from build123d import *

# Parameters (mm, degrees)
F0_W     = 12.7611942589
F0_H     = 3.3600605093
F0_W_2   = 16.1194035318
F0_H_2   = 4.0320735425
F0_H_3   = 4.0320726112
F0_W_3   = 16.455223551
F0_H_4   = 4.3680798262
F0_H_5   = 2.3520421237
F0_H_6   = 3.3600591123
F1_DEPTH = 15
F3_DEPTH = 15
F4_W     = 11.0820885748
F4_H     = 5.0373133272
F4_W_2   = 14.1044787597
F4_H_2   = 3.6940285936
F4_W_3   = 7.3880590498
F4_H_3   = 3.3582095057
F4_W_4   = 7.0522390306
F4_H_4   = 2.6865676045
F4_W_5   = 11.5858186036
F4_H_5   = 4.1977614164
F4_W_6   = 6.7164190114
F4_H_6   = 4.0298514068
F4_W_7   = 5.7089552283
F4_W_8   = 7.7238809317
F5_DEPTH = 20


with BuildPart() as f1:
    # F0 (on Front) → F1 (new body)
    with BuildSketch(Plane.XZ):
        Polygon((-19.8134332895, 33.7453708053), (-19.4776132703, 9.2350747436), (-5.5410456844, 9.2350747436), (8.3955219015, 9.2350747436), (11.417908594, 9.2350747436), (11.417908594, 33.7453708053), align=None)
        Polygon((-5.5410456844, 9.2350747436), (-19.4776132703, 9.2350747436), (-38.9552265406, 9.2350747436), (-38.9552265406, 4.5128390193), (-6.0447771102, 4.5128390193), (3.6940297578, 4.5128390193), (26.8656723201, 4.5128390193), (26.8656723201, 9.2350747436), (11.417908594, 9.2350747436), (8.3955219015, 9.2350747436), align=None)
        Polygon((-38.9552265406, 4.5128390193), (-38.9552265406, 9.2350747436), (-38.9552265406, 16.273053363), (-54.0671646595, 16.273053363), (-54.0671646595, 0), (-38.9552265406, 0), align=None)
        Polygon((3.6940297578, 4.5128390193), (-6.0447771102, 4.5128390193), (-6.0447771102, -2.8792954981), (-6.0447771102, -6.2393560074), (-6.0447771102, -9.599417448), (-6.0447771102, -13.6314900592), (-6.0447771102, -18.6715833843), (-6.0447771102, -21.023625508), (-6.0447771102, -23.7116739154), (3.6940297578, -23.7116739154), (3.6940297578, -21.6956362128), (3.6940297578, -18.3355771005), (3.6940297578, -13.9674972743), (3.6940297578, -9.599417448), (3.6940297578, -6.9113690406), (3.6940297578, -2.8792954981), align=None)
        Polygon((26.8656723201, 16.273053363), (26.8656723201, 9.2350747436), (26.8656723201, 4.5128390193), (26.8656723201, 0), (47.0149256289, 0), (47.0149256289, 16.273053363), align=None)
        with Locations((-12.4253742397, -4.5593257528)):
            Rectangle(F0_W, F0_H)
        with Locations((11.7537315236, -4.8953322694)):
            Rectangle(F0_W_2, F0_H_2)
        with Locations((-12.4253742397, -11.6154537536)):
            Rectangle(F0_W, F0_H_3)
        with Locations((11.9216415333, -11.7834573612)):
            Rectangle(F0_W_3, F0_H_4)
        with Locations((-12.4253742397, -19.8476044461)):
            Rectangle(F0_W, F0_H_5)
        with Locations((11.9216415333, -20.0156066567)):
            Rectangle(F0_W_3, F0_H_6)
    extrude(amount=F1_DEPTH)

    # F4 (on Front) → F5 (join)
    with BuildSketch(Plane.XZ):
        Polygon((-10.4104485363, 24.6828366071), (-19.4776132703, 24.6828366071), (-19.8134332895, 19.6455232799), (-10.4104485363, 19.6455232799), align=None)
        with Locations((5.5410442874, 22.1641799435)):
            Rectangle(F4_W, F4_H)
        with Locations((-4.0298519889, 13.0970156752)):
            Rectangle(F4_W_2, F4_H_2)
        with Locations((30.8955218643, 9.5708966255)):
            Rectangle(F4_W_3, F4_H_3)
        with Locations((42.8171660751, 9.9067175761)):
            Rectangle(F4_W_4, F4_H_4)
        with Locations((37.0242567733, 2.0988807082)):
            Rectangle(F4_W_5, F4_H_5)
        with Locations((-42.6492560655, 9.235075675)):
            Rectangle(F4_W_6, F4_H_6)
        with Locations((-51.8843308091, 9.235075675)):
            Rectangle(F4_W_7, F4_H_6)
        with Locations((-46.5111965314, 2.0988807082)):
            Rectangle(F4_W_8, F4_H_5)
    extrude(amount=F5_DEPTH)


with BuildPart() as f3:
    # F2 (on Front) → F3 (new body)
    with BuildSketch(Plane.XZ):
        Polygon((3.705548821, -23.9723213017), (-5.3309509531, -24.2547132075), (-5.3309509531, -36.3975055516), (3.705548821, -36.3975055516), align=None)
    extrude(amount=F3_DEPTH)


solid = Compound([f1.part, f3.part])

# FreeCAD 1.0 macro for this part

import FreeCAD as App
import Part
import Sketcher
Q = App.Units.Quantity


def add_polygon(sketch, points):
    """Adds a closed chain of lines whose ends are joined by coincident constraints."""
    first, n = sketch.GeometryCount, len(points)
    for a, b in zip(points, points[1:] + points[:1]):
        sketch.addGeometry(Part.LineSegment(App.Vector(*a, 0), App.Vector(*b, 0)), False)
    for i in range(n):
        sketch.addConstraint(Sketcher.Constraint("Coincident", first + i, 2, first + (i + 1) % n, 1))

doc = App.newDocument("Part")
params = doc.addObject("Spreadsheet::Sheet", "Params")
for row, (alias, value) in enumerate([
    ("pad1_length", "15 mm"),
    ("pad2_length", "20 mm"),
    ("pad3_length", "15 mm"),
], start=1):
    params.set(f"A{row}", alias)
    params.set(f"B{row}", "=" + value)
    params.setAlias(f"B{row}", alias)

body = doc.addObject("PartDesign::Body", "Body")

sketch1 = body.newObject("Sketcher::SketchObject", "Sketch")
sketch1.AttachmentSupport = (doc.getObject("XZ_Plane"), [""])
sketch1.MapMode = "FlatFace"
add_polygon(sketch1, [(-19.813433, 33.745371), (-19.477613, 9.235075), (-38.955227, 9.235075), (-38.955227, 16.273053), (-54.067165, 16.273053), (-54.067165, 0), (-38.955227, 0), (-38.955227, 4.512839), (-6.044777, 4.512839), (-6.044777, -2.879295), (-18.805971, -2.879295), (-18.805971, -6.239356), (-6.044777, -6.239356), (-6.044777, -9.599417), (-18.805971, -9.599417), (-18.805971, -13.63149), (-6.044777, -13.63149), (-6.044777, -18.671583), (-18.805971, -18.671583), (-18.805971, -21.023626), (-6.044777, -21.023626), (-6.044777, -23.711674), (3.69403, -23.711674), (3.69403, -21.695636), (20.149253, -21.695636), (20.149253, -18.335577), (3.69403, -18.335577), (3.69403, -13.967497), (20.149253, -13.967497), (20.149253, -9.599417), (3.69403, -9.599417), (3.69403, -6.911369), (19.813433, -6.911369), (19.813433, -2.879295), (3.69403, -2.879295), (3.69403, 4.512839), (26.865672, 4.512839), (26.865672, 0), (47.014926, 0), (47.014926, 16.273053), (26.865672, 16.273053), (26.865672, 9.235075), (11.417909, 9.235075), (11.417909, 33.745371)])
sketch1.addConstraint([
    Sketcher.Constraint("Horizontal", 1),
    Sketcher.Constraint("Vertical", 2),
    Sketcher.Constraint("Horizontal", 3),
    Sketcher.Constraint("Vertical", 4),
    Sketcher.Constraint("Horizontal", 5),
    Sketcher.Constraint("Vertical", 6),
    Sketcher.Constraint("Horizontal", 7),
    Sketcher.Constraint("Vertical", 8),
    Sketcher.Constraint("Horizontal", 9),
    Sketcher.Constraint("Vertical", 10),
    Sketcher.Constraint("Horizontal", 11),
    Sketcher.Constraint("Vertical", 12),
    Sketcher.Constraint("Horizontal", 13),
    Sketcher.Constraint("Vertical", 14),
    Sketcher.Constraint("Horizontal", 15),
    Sketcher.Constraint("Vertical", 16),
    Sketcher.Constraint("Horizontal", 17),
    Sketcher.Constraint("Vertical", 18),
    Sketcher.Constraint("Horizontal", 19),
    Sketcher.Constraint("Vertical", 20),
    Sketcher.Constraint("Horizontal", 21),
    Sketcher.Constraint("Vertical", 22),
    Sketcher.Constraint("Horizontal", 23),
    Sketcher.Constraint("Vertical", 24),
    Sketcher.Constraint("Horizontal", 25),
    Sketcher.Constraint("Vertical", 26),
    Sketcher.Constraint("Horizontal", 27),
    Sketcher.Constraint("Vertical", 28),
    Sketcher.Constraint("Horizontal", 29),
    Sketcher.Constraint("Vertical", 30),
    Sketcher.Constraint("Horizontal", 31),
    Sketcher.Constraint("Vertical", 32),
    Sketcher.Constraint("Horizontal", 33),
    Sketcher.Constraint("Vertical", 34),
    Sketcher.Constraint("Horizontal", 35),
    Sketcher.Constraint("Vertical", 36),
    Sketcher.Constraint("Horizontal", 37),
    Sketcher.Constraint("Vertical", 38),
    Sketcher.Constraint("Horizontal", 39),
    Sketcher.Constraint("Vertical", 40),
    Sketcher.Constraint("Horizontal", 41),
    Sketcher.Constraint("Vertical", 42),
    Sketcher.Constraint("Horizontal", 43),
    Sketcher.Constraint("PointOnObject", 4, 2, -1),
    Sketcher.Constraint("PointOnObject", 36, 2, -1),
    Sketcher.Constraint("Horizontal", 13, 2, 28, 2),
    Sketcher.Constraint("Horizontal", 9, 2, 32, 2),
    Sketcher.Constraint("Horizontal", 7, 2, 34, 2),
    Sketcher.Constraint("Horizontal", 3, 2, 38, 2),
    Sketcher.Constraint("Horizontal", 1, 2, 40, 2),
    Sketcher.Constraint("Vertical", 2, 2, 5, 2),
    Sketcher.Constraint("Vertical", 8, 2, 11, 2),
    Sketcher.Constraint("Vertical", 10, 2, 13, 2),
    Sketcher.Constraint("Vertical", 12, 2, 15, 2),
    Sketcher.Constraint("Vertical", 14, 2, 17, 2),
    Sketcher.Constraint("Vertical", 16, 2, 19, 2),
    Sketcher.Constraint("Vertical", 22, 2, 25, 2),
    Sketcher.Constraint("Vertical", 24, 2, 27, 2),
    Sketcher.Constraint("Vertical", 26, 2, 29, 2),
    Sketcher.Constraint("Vertical", 30, 2, 33, 2),
    Sketcher.Constraint("Vertical", 36, 2, 39, 2),
    Sketcher.Constraint("Equal", 10, 12),
    Sketcher.Constraint("Equal", 10, 24),
    Sketcher.Constraint("Equal", 26, 28),
    Sketcher.Constraint("Equal", 20, 30),
    Sketcher.Constraint("Equal", 14, 32),
    Sketcher.Constraint("DistanceX", 3, 2, 3, 1, Q("15.111938 mm")),
    Sketcher.Constraint("DistanceX", 7, 1, 7, 2, Q("32.910449 mm")),
    Sketcher.Constraint("DistanceX", 43, 2, 43, 1, Q("31.231342 mm")),
    Sketcher.Constraint("DistanceY", 2, 1, 2, 2, Q("7.037979 mm")),
    Sketcher.Constraint("DistanceY", 6, 1, 6, 2, Q("4.512839 mm")),
    Sketcher.Constraint("DistanceY", 10, 2, 10, 1, Q("3.360061 mm")),
    Sketcher.Constraint("DistanceY", 20, 2, 20, 1, Q("2.688048 mm")),
    Sketcher.Constraint("DistanceY", 26, 1, 26, 2, Q("4.36808 mm")),
    Sketcher.Constraint("DistanceX", 1, 2, 1, 1, Q("19.477613 mm")),
    Sketcher.Constraint("DistanceX", 9, 2, 9, 1, Q("12.761194 mm")),
    Sketcher.Constraint("DistanceX", 21, 1, 21, 2, Q("9.738807 mm")),
    Sketcher.Constraint("DistanceX", 23, 1, 23, 2, Q("16.455224 mm")),
    Sketcher.Constraint("DistanceX", 31, 1, 31, 2, Q("16.119404 mm")),
    Sketcher.Constraint("DistanceX", 35, 1, 35, 2, Q("23.171643 mm")),
    Sketcher.Constraint("DistanceX", 37, 1, 37, 2, Q("20.149253 mm")),
    Sketcher.Constraint("DistanceX", 41, 2, 41, 1, Q("15.447764 mm")),
    Sketcher.Constraint("DistanceY", 4, 2, 4, 1, Q("16.273053 mm")),
    Sketcher.Constraint("DistanceY", 8, 2, 8, 1, Q("7.392135 mm")),
    Sketcher.Constraint("DistanceY", 16, 2, 16, 1, Q("5.040093 mm")),
    Sketcher.Constraint("DistanceY", 18, 2, 18, 1, Q("2.352042 mm")),
    Sketcher.Constraint("DistanceY", 42, 1, 42, 2, Q("24.510296 mm")),
    Sketcher.Constraint("DistanceX", 9, 2, -1, 1, Q("18.805971 mm")),
])
pad1 = body.newObject("PartDesign::Pad", "Pad")
pad1.Profile = sketch1
pad1.setExpression("Length", "Params.pad1_length")

sketch2 = body.newObject("Sketcher::SketchObject", "Sketch001")
sketch2.AttachmentSupport = (doc.getObject("XZ_Plane"), [""])
sketch2.MapMode = "FlatFace"
add_polygon(sketch2, [(-10.410449, 24.682837), (-19.477613, 24.682837), (-19.813433, 19.645523), (-10.410449, 19.645523)])
add_polygon(sketch2, [(0, 24.682837), (0, 19.645523), (11.082089, 19.645523), (11.082089, 24.682837)])
add_polygon(sketch2, [(-11.082091, 14.94403), (-11.082091, 11.250001), (3.022387, 11.250001), (3.022387, 14.94403)])
add_polygon(sketch2, [(27.201492, 11.250001), (27.201492, 7.891792), (34.589551, 7.891792), (34.589551, 11.250001)])
add_polygon(sketch2, [(39.291047, 11.250001), (39.291047, 8.563434), (46.343286, 8.563434), (46.343286, 11.250001)])
add_polygon(sketch2, [(31.231347, 4.197761), (31.231347, 0), (42.817166, 0), (42.817166, 4.197761)])
add_polygon(sketch2, [(-46.007466, 11.250001), (-46.007466, 7.22015), (-39.291047, 7.22015), (-39.291047, 11.250001)])
add_polygon(sketch2, [(-54.738808, 11.250001), (-54.738808, 7.22015), (-49.029853, 7.22015), (-49.029853, 11.250001)])
add_polygon(sketch2, [(-50.373137, 4.197761), (-50.373137, 0), (-42.649256, 0), (-42.649256, 4.197761)])
sketch2.addConstraint([
    Sketcher.Constraint("Horizontal", 0),
    Sketcher.Constraint("Horizontal", 2),
    Sketcher.Constraint("Vertical", 3),
    Sketcher.Constraint("Vertical", 4),
    Sketcher.Constraint("Horizontal", 5),
    Sketcher.Constraint("Vertical", 6),
    Sketcher.Constraint("Horizontal", 7),
    Sketcher.Constraint("Vertical", 8),
    Sketcher.Constraint("Horizontal", 9),
    Sketcher.Constraint("Vertical", 10),
    Sketcher.Constraint("Horizontal", 11),
    Sketcher.Constraint("Vertical", 12),
    Sketcher.Constraint("Horizontal", 13),
    Sketcher.Constraint("Vertical", 14),
    Sketcher.Constraint("Horizontal", 15),
    Sketcher.Constraint("Vertical", 16),
    Sketcher.Constraint("Horizontal", 17),
    Sketcher.Constraint("Vertical", 18),
    Sketcher.Constraint("Horizontal", 19),
    Sketcher.Constraint("Vertical", 20),
    Sketcher.Constraint("Horizontal", 21),
    Sketcher.Constraint("Vertical", 22),
    Sketcher.Constraint("Horizontal", 23),
    Sketcher.Constraint("Vertical", 24),
    Sketcher.Constraint("Horizontal", 25),
    Sketcher.Constraint("Vertical", 26),
    Sketcher.Constraint("Horizontal", 27),
    Sketcher.Constraint("Vertical", 28),
    Sketcher.Constraint("Horizontal", 29),
    Sketcher.Constraint("Vertical", 30),
    Sketcher.Constraint("Horizontal", 31),
    Sketcher.Constraint("Vertical", 32),
    Sketcher.Constraint("Horizontal", 33),
    Sketcher.Constraint("Vertical", 34),
    Sketcher.Constraint("Horizontal", 35),
    Sketcher.Constraint("Symmetric", 19, 2, 26, 2, -2),
    Sketcher.Constraint("PointOnObject", 4, 2, -2),
    Sketcher.Constraint("PointOnObject", 20, 2, -1),
    Sketcher.Constraint("PointOnObject", 32, 2, -1),
    Sketcher.Constraint("Horizontal", 2, 2, 4, 2),
    Sketcher.Constraint("Horizontal", 3, 2, 6, 2),
    Sketcher.Constraint("Horizontal", 9, 2, 14, 2),
    Sketcher.Constraint("Horizontal", 15, 2, 18, 2),
    Sketcher.Constraint("Horizontal", 25, 2, 28, 2),
    Sketcher.Constraint("Horizontal", 27, 2, 30, 2),
    Sketcher.Constraint("Horizontal", 23, 2, 34, 2),
    Sketcher.Constraint("DistanceY", -1, 1, 8, 2, Q("11.250001 mm")),
    Sketcher.Constraint("DistanceX", 5, 1, 5, 2, Q("11.082089 mm")),
    Sketcher.Constraint("DistanceX", 9, 1, 9, 2, Q("14.104479 mm")),
    Sketcher.Constraint("DistanceX", 13, 1, 13, 2, Q("7.388059 mm")),
    Sketcher.Constraint("DistanceX", 17, 1, 17, 2, Q("7.052239 mm")),
    Sketcher.Constraint("DistanceX", 21, 1, 21, 2, Q("11.585819 mm")),
    Sketcher.Constraint("DistanceX", 25, 1, 25, 2, Q("6.716419 mm")),
    Sketcher.Constraint("DistanceX", 33, 1, 33, 2, Q("7.723881 mm")),
    Sketcher.Constraint("DistanceY", 8, 2, 8, 1, Q("3.694029 mm")),
    Sketcher.Constraint("DistanceY", 12, 2, 12, 1, Q("3.35821 mm")),
    Sketcher.Constraint("DistanceY", 20, 2, 20, 1, Q("4.197761 mm")),
    Sketcher.Constraint("DistanceY", 24, 2, 24, 1, Q("4.029851 mm")),
    Sketcher.Constraint("DistanceX", 0, 2, 5, 2, Q("30.559702 mm")),
    Sketcher.Constraint("DistanceX", 9, 2, 5, 2, Q("8.059701 mm")),
    Sketcher.Constraint("DistanceX", 20, 2, 16, 2, Q("8.059699 mm")),
    Sketcher.Constraint("DistanceX", 0, 2, 0, 1, Q("9.067165 mm")),
    Sketcher.Constraint("DistanceX", 2, 1, 2, 2, Q("9.402985 mm")),
    Sketcher.Constraint("DistanceX", 29, 1, 29, 2, Q("5.708955 mm")),
    Sketcher.Constraint("DistanceY", 3, 1, 3, 2, Q("5.037313 mm")),
    Sketcher.Constraint("DistanceY", 16, 2, 16, 1, Q("2.686568 mm")),
    Sketcher.Constraint("DistanceX", -1, 1, 13, 2, Q("34.589551 mm")),
    Sketcher.Constraint("DistanceX", 28, 2, -1, 1, Q("54.738808 mm")),
    Sketcher.Constraint("DistanceY", 8, 2, 2, 2, Q("8.395522 mm")),
    Sketcher.Constraint("DistanceX", 28, 2, 25, 2, Q("15.447762 mm")),
    Sketcher.Constraint("DistanceX", 28, 2, 32, 2, Q("4.365671 mm")),
])
pad2 = body.newObject("PartDesign::Pad", "Pad001")
pad2.Profile = sketch2
pad2.setExpression("Length", "Params.pad2_length")
body2 = doc.addObject("PartDesign::Body", "Body001")

sketch3 = body2.newObject("Sketcher::SketchObject", "Sketch002")
sketch3.AttachmentSupport = (doc.getObject("XZ_Plane001"), [""])
sketch3.MapMode = "FlatFace"
add_polygon(sketch3, [(3.705549, -23.972321), (-5.330951, -24.254713), (-5.330951, -36.397506), (3.705549, -36.397506)])
sketch3.addConstraint([
    Sketcher.Constraint("Vertical", 1),
    Sketcher.Constraint("Horizontal", 2),
    Sketcher.Constraint("Vertical", 3),
    Sketcher.Constraint("DistanceX", 2, 1, 2, 2, Q("9.0365 mm")),
    Sketcher.Constraint("Distance", 0, Q("9.040911 mm")),
    Sketcher.Constraint("DistanceY", 1, 2, 1, 1, Q("12.142792 mm")),
    Sketcher.Constraint("DistanceX", 0, 2, -1, 1, Q("5.330951 mm")),
    Sketcher.Constraint("DistanceY", 3, 2, -1, 1, Q("23.972321 mm")),
])
pad3 = body2.newObject("PartDesign::Pad", "Pad002")
pad3.Profile = sketch3
pad3.setExpression("Length", "Params.pad3_length")

doc.recompute()
